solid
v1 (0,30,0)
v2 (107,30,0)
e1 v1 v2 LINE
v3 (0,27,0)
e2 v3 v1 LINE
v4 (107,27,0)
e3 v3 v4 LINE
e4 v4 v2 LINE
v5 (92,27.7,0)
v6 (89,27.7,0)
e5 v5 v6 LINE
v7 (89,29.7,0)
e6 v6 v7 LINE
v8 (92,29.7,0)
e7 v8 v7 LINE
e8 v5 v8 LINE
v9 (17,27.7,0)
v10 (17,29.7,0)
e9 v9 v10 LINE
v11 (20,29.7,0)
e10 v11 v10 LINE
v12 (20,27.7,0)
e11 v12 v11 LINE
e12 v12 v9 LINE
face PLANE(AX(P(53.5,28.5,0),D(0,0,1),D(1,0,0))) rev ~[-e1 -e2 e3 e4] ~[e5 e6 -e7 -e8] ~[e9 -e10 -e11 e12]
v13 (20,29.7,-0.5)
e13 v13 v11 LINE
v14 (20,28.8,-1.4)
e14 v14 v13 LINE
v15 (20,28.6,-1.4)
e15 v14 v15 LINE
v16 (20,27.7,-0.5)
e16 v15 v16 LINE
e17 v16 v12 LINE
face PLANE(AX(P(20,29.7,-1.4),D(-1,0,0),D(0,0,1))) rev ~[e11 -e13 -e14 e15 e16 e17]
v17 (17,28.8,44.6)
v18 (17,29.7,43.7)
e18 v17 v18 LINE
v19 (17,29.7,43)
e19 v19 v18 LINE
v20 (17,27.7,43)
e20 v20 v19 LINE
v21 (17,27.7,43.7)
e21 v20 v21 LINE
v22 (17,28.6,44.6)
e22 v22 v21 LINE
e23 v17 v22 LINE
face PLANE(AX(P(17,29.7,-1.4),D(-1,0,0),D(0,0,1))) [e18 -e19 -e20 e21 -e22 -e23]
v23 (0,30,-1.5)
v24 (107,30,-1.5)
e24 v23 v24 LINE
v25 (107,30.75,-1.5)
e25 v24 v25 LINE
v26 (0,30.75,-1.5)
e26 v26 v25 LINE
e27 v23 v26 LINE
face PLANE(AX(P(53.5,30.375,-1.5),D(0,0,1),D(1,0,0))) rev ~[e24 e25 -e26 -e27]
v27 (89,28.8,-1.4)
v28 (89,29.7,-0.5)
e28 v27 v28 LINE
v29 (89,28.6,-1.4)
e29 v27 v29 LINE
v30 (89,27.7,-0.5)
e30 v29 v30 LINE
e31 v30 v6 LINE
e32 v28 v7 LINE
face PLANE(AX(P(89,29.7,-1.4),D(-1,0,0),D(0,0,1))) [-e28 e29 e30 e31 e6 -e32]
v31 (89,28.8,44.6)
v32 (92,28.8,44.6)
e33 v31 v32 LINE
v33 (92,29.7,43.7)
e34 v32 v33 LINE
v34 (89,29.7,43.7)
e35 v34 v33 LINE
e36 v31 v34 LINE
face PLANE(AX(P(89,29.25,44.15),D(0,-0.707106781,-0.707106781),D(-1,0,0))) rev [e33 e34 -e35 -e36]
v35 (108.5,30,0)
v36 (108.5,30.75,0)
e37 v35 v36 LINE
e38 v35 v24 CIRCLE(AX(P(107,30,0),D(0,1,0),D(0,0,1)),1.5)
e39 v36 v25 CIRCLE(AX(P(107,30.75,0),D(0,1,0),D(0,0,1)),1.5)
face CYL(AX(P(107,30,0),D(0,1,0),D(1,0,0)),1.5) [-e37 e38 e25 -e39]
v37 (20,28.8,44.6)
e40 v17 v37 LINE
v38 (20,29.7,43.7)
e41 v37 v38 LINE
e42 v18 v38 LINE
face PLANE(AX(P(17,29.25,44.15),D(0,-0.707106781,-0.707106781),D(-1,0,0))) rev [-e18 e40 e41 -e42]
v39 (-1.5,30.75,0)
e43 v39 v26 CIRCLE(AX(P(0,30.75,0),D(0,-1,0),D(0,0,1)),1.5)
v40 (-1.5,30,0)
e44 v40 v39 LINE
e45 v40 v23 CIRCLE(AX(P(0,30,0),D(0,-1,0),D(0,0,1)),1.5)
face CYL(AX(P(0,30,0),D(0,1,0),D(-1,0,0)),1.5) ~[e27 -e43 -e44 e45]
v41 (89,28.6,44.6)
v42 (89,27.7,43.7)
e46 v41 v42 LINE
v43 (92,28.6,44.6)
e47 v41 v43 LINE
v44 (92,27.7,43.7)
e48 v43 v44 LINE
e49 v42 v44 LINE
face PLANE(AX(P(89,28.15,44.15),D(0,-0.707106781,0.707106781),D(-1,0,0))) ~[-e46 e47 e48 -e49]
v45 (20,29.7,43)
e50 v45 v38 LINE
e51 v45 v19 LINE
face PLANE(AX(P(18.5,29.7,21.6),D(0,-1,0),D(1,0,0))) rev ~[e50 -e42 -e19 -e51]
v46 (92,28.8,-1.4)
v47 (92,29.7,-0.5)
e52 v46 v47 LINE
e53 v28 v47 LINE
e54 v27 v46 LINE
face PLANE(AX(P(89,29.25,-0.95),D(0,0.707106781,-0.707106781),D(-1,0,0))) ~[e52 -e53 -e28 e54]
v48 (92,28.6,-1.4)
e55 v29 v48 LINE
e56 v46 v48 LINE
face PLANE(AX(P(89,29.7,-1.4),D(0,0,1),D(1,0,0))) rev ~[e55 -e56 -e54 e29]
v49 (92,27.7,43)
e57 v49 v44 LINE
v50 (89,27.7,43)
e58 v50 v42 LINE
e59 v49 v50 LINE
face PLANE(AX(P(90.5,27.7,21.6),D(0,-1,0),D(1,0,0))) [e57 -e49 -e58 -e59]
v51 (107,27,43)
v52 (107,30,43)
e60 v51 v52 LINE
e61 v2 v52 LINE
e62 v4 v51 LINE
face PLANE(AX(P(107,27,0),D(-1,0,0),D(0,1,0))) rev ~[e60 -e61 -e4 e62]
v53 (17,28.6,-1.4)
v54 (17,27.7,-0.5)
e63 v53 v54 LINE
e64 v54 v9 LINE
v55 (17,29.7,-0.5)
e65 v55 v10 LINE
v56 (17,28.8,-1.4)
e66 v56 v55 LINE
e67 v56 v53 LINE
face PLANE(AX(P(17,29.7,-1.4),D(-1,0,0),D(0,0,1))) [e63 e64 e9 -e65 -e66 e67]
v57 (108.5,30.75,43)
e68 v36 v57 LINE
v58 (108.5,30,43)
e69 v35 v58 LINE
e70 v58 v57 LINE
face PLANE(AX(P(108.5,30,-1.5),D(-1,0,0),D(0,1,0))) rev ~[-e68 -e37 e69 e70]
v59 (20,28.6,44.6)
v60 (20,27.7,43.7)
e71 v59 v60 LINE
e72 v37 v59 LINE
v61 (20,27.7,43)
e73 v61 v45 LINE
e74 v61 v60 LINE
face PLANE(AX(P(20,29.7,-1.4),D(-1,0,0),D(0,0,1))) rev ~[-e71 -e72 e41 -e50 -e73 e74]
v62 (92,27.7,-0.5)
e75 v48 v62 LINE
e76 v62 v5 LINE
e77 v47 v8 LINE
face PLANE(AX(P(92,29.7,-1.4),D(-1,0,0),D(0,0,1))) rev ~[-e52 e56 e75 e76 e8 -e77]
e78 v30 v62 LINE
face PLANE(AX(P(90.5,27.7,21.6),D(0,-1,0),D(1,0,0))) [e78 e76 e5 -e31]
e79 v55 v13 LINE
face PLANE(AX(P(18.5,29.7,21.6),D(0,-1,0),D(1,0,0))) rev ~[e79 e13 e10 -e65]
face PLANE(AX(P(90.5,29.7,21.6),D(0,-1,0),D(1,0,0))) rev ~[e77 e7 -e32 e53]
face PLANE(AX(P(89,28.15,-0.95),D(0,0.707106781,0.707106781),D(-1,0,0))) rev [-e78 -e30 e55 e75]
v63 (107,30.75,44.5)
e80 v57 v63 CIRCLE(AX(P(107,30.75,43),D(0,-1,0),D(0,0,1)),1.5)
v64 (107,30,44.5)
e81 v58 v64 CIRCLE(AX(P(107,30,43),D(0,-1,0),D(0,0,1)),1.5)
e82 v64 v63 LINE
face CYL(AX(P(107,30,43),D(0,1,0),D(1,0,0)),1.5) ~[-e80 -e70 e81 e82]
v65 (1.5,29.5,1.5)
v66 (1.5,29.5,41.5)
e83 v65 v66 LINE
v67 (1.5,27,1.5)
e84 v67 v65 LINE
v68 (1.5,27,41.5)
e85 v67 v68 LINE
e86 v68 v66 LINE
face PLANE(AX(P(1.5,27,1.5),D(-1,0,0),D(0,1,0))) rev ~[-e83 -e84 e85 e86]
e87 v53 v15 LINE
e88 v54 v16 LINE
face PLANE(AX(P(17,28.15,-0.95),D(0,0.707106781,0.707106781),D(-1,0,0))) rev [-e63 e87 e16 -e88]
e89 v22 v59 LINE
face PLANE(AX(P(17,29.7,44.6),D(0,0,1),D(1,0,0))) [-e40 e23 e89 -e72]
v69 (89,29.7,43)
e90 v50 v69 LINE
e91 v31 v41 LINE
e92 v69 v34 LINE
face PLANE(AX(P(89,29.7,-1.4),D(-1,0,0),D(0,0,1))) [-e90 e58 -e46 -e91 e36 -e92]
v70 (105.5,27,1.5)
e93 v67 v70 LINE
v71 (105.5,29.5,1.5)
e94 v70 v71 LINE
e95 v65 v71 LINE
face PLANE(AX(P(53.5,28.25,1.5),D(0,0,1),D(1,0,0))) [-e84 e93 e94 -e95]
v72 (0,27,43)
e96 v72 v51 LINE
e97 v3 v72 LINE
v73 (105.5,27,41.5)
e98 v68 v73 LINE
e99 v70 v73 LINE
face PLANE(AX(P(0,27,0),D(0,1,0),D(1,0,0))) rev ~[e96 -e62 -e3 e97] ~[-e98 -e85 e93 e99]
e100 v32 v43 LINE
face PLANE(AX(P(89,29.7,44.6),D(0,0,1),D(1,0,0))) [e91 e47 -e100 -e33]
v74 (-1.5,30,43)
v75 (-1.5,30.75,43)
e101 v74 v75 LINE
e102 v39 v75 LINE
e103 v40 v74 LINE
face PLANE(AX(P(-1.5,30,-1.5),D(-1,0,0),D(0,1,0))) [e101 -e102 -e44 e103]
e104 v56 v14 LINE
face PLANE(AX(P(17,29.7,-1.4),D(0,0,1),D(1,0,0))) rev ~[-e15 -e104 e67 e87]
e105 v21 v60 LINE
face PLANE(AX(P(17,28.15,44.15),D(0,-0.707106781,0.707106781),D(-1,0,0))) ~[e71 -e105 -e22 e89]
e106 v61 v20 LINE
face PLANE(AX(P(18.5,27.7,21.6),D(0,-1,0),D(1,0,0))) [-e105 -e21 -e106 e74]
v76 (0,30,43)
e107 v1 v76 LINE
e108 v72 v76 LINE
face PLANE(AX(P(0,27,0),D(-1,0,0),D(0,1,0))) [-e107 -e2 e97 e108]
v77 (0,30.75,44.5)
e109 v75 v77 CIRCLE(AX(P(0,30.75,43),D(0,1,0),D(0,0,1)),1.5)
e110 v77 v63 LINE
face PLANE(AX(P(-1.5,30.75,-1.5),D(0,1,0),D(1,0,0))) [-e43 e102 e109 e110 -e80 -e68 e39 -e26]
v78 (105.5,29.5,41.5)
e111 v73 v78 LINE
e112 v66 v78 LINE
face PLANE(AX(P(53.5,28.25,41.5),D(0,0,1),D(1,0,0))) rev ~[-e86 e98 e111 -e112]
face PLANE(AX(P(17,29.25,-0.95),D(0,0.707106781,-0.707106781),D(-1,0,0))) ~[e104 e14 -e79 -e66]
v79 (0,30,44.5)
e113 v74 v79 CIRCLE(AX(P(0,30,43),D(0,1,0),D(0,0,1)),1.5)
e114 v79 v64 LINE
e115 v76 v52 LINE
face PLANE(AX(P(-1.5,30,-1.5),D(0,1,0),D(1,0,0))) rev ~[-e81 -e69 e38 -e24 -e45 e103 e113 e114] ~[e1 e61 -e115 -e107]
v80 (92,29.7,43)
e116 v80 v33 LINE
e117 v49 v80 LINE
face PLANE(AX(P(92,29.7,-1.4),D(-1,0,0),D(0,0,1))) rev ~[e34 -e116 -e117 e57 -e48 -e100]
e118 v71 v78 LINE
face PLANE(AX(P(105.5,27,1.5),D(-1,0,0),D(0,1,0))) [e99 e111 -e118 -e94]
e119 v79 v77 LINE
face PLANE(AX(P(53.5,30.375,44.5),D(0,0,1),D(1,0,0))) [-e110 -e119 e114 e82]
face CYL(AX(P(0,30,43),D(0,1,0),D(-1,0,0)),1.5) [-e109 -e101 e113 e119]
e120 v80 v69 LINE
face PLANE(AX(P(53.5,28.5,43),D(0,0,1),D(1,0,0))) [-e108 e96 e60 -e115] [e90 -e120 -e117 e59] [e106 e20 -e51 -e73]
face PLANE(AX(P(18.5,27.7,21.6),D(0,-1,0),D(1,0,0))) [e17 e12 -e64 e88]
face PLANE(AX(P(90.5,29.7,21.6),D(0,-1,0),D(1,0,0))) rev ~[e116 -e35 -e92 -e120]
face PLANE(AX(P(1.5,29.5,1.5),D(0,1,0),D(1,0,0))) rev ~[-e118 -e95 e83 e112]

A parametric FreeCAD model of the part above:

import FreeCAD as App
import Part
import Sketcher
from FreeCAD import Vector


def edges_at(feature, points):
    """Names of the edges that pass closest to the given points."""
    edges = feature.Shape.Edges
    near = lambda p: min(range(len(edges)), key=lambda i: edges[i].distToShape(Part.Vertex(*p))[0])
    return sorted({f"Edge{near(p) + 1}" for p in points})

doc = App.newDocument("Part")
body = doc.addObject("PartDesign::Body", "Body")

# Sketch on XY plane
sketch1 = doc.addObject("Sketcher::SketchObject", "Sketch")
body.addObject(sketch1)
sketch1.AttachmentSupport = (doc.XY_Plane, [""])
sketch1.MapMode = "FlatFace"
sketch1.AttachmentOffset = App.Placement(Vector(0, 0, 1.5), App.Rotation())
sketch1.addGeometry([
    Part.LineSegment(Vector(1.5, 29.5, 0), Vector(1.5, 27, 0)),
    Part.LineSegment(Vector(1.5, 27, 0), Vector(105.5, 27, 0)),
    Part.LineSegment(Vector(105.5, 27, 0), Vector(105.5, 29.5, 0)),
    Part.LineSegment(Vector(105.5, 29.5, 0), Vector(1.5, 29.5, 0)),
], False)
sketch1.addConstraint([
    Sketcher.Constraint("Coincident", 0, 2, 1, 1),
    Sketcher.Constraint("Coincident", 1, 2, 2, 1),
    Sketcher.Constraint("Coincident", 2, 2, 3, 1),
    Sketcher.Constraint("Coincident", 3, 2, 0, 1),
    Sketcher.Constraint("Vertical", 0),
    Sketcher.Constraint("Horizontal", 1),
    Sketcher.Constraint("Vertical", 2),
    Sketcher.Constraint("Horizontal", 3),
    Sketcher.Constraint("DistanceX", 1, 1, 1, 2, 104.0),
    Sketcher.Constraint("DistanceY", 0, 2, 0, 1, 2.5),
    Sketcher.Constraint("DistanceY", -1, 1, 0, 2, 27.0),
    Sketcher.Constraint("DistanceX", -1, 1, 0, 2, 1.5),
])
pad1 = doc.addObject("PartDesign::Pad", "Pad")
body.addObject(pad1)
pad1.Profile = sketch1
pad1.Length = 40
body2 = doc.addObject("PartDesign::Body", "Body001")

# Sketch on XY plane
sketch2 = doc.addObject("Sketcher::SketchObject", "Sketch001")
body2.addObject(sketch2)
sketch2.AttachmentSupport = (doc.getObject("XY_Plane001"), [""])
sketch2.MapMode = "FlatFace"
sketch2.addGeometry([
    Part.LineSegment(Vector(0, 30, 0), Vector(0, 27, 0)),
    Part.LineSegment(Vector(0, 27, 0), Vector(107, 27, 0)),
    Part.LineSegment(Vector(107, 27, 0), Vector(107, 30, 0)),
    Part.LineSegment(Vector(107, 30, 0), Vector(0, 30, 0)),
], False)
sketch2.addConstraint([
    Sketcher.Constraint("Coincident", 0, 2, 1, 1),
    Sketcher.Constraint("Coincident", 1, 2, 2, 1),
    Sketcher.Constraint("Coincident", 2, 2, 3, 1),
    Sketcher.Constraint("Coincident", 3, 2, 0, 1),
    Sketcher.Constraint("Vertical", 0),
    Sketcher.Constraint("Horizontal", 1),
    Sketcher.Constraint("Vertical", 2),
    Sketcher.Constraint("Horizontal", 3),
    Sketcher.Constraint("PointOnObject", 0, 2, -2),
    Sketcher.Constraint("DistanceX", 1, 1, 1, 2, 107.0),
    Sketcher.Constraint("DistanceY", 0, 2, 0, 1, 3.0),
    Sketcher.Constraint("DistanceY", -1, 1, 0, 2, 27.0),
])
pad2 = doc.addObject("PartDesign::Pad", "Pad001")
body2.addObject(pad2)
pad2.Profile = sketch2
pad2.Length = 43
body3 = doc.addObject("PartDesign::Body", "Body002")

# Sketch on XY plane
sketch3 = doc.addObject("Sketcher::SketchObject", "Sketch002")
body3.addObject(sketch3)
sketch3.AttachmentSupport = (doc.getObject("XY_Plane002"), [""])
sketch3.MapMode = "FlatFace"
sketch3.AttachmentOffset = App.Placement(Vector(0, 0, -6), App.Rotation())
sketch3.addGeometry([
    Part.LineSegment(Vector(5, 45, 0), Vector(5, -1, 0)),
    Part.LineSegment(Vector(5, -1, 0), Vector(8, -1, 0)),
    Part.LineSegment(Vector(8, -1, 0), Vector(8, 45, 0)),
    Part.LineSegment(Vector(8, 45, 0), Vector(5, 45, 0)),
], False)
sketch3.addConstraint([
    Sketcher.Constraint("Coincident", 0, 2, 1, 1),
    Sketcher.Constraint("Coincident", 1, 2, 2, 1),
    Sketcher.Constraint("Coincident", 2, 2, 3, 1),
    Sketcher.Constraint("Coincident", 3, 2, 0, 1),
    Sketcher.Constraint("Vertical", 0),
    Sketcher.Constraint("Horizontal", 1),
    Sketcher.Constraint("Vertical", 2),
    Sketcher.Constraint("Horizontal", 3),
    Sketcher.Constraint("DistanceX", 1, 1, 1, 2, 3.0),
    Sketcher.Constraint("DistanceY", 0, 2, 0, 1, 46.0),
    Sketcher.Constraint("DistanceX", -1, 1, 0, 2, 5.0),
    Sketcher.Constraint("DistanceY", 0, 2, -1, 1, 1.0),
])
pad3 = doc.addObject("PartDesign::Pad", "Pad002")
body3.addObject(pad3)
pad3.Profile = sketch3
pad3.Length = 2
doc.recompute()

chamfer = doc.addObject("PartDesign::Chamfer", "Chamfer")
body3.addObject(chamfer)
chamfer.Base = (pad3, edges_at(pad3, [
    (6.5, -1, -6),
    (6.5, -1, -4),
    (6.5, 45, -6),
    (6.5, 45, -4),
]))
chamfer.Size = 0.9
body4 = doc.addObject("PartDesign::Body", "Body003")
doc.recompute()

body3.Placement = App.Placement(Vector(84, 23.7, -0.4), App.Rotation(Vector(1, 0, 0), 90))
boolean = doc.addObject("PartDesign::Boolean", "Boolean")
body4.addObject(boolean)
boolean.Type = "Fuse"
boolean.addObjects([body3])
body5 = doc.addObject("PartDesign::Body", "Body004")

# Sketch on XY plane
sketch4 = doc.addObject("Sketcher::SketchObject", "Sketch003")
body5.addObject(sketch4)
sketch4.AttachmentSupport = (doc.getObject("XY_Plane004"), [""])
sketch4.MapMode = "FlatFace"
sketch4.AttachmentOffset = App.Placement(Vector(0, 0, -6), App.Rotation())
sketch4.addGeometry([
    Part.LineSegment(Vector(5, 45, 0), Vector(5, -1, 0)),
    Part.LineSegment(Vector(5, -1, 0), Vector(8, -1, 0)),
    Part.LineSegment(Vector(8, -1, 0), Vector(8, 45, 0)),
    Part.LineSegment(Vector(8, 45, 0), Vector(5, 45, 0)),
], False)
sketch4.addConstraint([
    Sketcher.Constraint("Coincident", 0, 2, 1, 1),
    Sketcher.Constraint("Coincident", 1, 2, 2, 1),
    Sketcher.Constraint("Coincident", 2, 2, 3, 1),
    Sketcher.Constraint("Coincident", 3, 2, 0, 1),
    Sketcher.Constraint("Vertical", 0),
    Sketcher.Constraint("Horizontal", 1),
    Sketcher.Constraint("Vertical", 2),
    Sketcher.Constraint("Horizontal", 3),
    Sketcher.Constraint("DistanceX", 1, 1, 1, 2, 3.0),
    Sketcher.Constraint("DistanceY", 0, 2, 0, 1, 46.0),
    Sketcher.Constraint("DistanceX", -1, 1, 0, 2, 5.0),
    Sketcher.Constraint("DistanceY", 0, 2, -1, 1, 1.0),
])
pad4 = doc.addObject("PartDesign::Pad", "Pad003")
body5.addObject(pad4)
pad4.Profile = sketch4
pad4.Length = 2
doc.recompute()

chamfer2 = doc.addObject("PartDesign::Chamfer", "Chamfer001")
body5.addObject(chamfer2)
chamfer2.Base = (pad4, edges_at(pad4, [
    (6.5, -1, -6),
    (6.5, -1, -4),
    (6.5, 45, -6),
    (6.5, 45, -4),
]))
chamfer2.Size = 0.9
body6 = doc.addObject("PartDesign::Body", "Body005")
body6.AllowCompound = True
doc.recompute()

body5.Placement = App.Placement(Vector(12, 23.7, -0.4), App.Rotation(Vector(1, 0, 0), 90))
boolean2 = doc.addObject("PartDesign::Boolean", "Boolean001")
body6.addObject(boolean2)
boolean2.Type = "Fuse"
boolean2.addObjects([body5])
doc.recompute()

boolean3 = doc.addObject("PartDesign::Boolean", "Boolean002")
body6.addObject(boolean3)
boolean3.Type = "Fuse"
boolean3.addObjects([body4])
doc.recompute()

boolean4 = doc.addObject("PartDesign::Boolean", "Boolean003")
body6.addObject(boolean4)
boolean4.Type = "Fuse"
boolean4.addObjects([body2])
doc.recompute()

boolean5 = doc.addObject("PartDesign::Boolean", "Boolean004")
body6.addObject(boolean5)
boolean5.Type = "Cut"
boolean5.addObjects([body])
body7 = doc.addObject("PartDesign::Body", "Body006")

# Sketch on XY plane
sketch5 = doc.addObject("Sketcher::SketchObject", "Sketch004")
body7.addObject(sketch5)
sketch5.AttachmentSupport = (doc.getObject("XY_Plane006"), [""])
sketch5.MapMode = "FlatFace"
sketch5.AttachmentOffset = App.Placement(Vector(0, 0, -1.5), App.Rotation())
sketch5.addGeometry([
    Part.LineSegment(Vector(-1.5, 30.8, 0), Vector(-1.5, 30, 0)),
    Part.LineSegment(Vector(-1.5, 30, 0), Vector(108.5, 30, 0)),
    Part.LineSegment(Vector(108.5, 30, 0), Vector(108.5, 30.8, 0)),
    Part.LineSegment(Vector(108.5, 30.8, 0), Vector(-1.5, 30.8, 0)),
], False)
sketch5.addConstraint([
    Sketcher.Constraint("Coincident", 0, 2, 1, 1),
    Sketcher.Constraint("Coincident", 1, 2, 2, 1),
    Sketcher.Constraint("Coincident", 2, 2, 3, 1),
    Sketcher.Constraint("Coincident", 3, 2, 0, 1),
    Sketcher.Constraint("Vertical", 0),
    Sketcher.Constraint("Horizontal", 1),
    Sketcher.Constraint("Vertical", 2),
    Sketcher.Constraint("Horizontal", 3),
    Sketcher.Constraint("DistanceX", 1, 1, 1, 2, 110.0),
    Sketcher.Constraint("DistanceY", -1, 1, 0, 2, 30.0),
    Sketcher.Constraint("DistanceY", 0, 2, 0, 1, 0.75),
    Sketcher.Constraint("DistanceX", 0, 2, -1, 1, 1.5),
])
pad5 = doc.addObject("PartDesign::Pad", "Pad004")
body7.addObject(pad5)
pad5.Profile = sketch5
pad5.Length = 46
doc.recompute()

fillet = doc.addObject("PartDesign::Fillet", "Fillet")
body7.addObject(fillet)
fillet.Base = (pad5, edges_at(pad5, [
    (-1.5, 30.375, 44.5),
    (-1.5, 30.375, -1.5),
    (108.5, 30.375, 44.5),
    (108.5, 30.375, -1.5),
]))
fillet.Radius = 1.5
doc.recompute()

boolean6 = doc.addObject("PartDesign::Boolean", "Boolean005")
body7.addObject(boolean6)
boolean6.Type = "Fuse"
boolean6.addObjects([body6])

doc.recompute()
